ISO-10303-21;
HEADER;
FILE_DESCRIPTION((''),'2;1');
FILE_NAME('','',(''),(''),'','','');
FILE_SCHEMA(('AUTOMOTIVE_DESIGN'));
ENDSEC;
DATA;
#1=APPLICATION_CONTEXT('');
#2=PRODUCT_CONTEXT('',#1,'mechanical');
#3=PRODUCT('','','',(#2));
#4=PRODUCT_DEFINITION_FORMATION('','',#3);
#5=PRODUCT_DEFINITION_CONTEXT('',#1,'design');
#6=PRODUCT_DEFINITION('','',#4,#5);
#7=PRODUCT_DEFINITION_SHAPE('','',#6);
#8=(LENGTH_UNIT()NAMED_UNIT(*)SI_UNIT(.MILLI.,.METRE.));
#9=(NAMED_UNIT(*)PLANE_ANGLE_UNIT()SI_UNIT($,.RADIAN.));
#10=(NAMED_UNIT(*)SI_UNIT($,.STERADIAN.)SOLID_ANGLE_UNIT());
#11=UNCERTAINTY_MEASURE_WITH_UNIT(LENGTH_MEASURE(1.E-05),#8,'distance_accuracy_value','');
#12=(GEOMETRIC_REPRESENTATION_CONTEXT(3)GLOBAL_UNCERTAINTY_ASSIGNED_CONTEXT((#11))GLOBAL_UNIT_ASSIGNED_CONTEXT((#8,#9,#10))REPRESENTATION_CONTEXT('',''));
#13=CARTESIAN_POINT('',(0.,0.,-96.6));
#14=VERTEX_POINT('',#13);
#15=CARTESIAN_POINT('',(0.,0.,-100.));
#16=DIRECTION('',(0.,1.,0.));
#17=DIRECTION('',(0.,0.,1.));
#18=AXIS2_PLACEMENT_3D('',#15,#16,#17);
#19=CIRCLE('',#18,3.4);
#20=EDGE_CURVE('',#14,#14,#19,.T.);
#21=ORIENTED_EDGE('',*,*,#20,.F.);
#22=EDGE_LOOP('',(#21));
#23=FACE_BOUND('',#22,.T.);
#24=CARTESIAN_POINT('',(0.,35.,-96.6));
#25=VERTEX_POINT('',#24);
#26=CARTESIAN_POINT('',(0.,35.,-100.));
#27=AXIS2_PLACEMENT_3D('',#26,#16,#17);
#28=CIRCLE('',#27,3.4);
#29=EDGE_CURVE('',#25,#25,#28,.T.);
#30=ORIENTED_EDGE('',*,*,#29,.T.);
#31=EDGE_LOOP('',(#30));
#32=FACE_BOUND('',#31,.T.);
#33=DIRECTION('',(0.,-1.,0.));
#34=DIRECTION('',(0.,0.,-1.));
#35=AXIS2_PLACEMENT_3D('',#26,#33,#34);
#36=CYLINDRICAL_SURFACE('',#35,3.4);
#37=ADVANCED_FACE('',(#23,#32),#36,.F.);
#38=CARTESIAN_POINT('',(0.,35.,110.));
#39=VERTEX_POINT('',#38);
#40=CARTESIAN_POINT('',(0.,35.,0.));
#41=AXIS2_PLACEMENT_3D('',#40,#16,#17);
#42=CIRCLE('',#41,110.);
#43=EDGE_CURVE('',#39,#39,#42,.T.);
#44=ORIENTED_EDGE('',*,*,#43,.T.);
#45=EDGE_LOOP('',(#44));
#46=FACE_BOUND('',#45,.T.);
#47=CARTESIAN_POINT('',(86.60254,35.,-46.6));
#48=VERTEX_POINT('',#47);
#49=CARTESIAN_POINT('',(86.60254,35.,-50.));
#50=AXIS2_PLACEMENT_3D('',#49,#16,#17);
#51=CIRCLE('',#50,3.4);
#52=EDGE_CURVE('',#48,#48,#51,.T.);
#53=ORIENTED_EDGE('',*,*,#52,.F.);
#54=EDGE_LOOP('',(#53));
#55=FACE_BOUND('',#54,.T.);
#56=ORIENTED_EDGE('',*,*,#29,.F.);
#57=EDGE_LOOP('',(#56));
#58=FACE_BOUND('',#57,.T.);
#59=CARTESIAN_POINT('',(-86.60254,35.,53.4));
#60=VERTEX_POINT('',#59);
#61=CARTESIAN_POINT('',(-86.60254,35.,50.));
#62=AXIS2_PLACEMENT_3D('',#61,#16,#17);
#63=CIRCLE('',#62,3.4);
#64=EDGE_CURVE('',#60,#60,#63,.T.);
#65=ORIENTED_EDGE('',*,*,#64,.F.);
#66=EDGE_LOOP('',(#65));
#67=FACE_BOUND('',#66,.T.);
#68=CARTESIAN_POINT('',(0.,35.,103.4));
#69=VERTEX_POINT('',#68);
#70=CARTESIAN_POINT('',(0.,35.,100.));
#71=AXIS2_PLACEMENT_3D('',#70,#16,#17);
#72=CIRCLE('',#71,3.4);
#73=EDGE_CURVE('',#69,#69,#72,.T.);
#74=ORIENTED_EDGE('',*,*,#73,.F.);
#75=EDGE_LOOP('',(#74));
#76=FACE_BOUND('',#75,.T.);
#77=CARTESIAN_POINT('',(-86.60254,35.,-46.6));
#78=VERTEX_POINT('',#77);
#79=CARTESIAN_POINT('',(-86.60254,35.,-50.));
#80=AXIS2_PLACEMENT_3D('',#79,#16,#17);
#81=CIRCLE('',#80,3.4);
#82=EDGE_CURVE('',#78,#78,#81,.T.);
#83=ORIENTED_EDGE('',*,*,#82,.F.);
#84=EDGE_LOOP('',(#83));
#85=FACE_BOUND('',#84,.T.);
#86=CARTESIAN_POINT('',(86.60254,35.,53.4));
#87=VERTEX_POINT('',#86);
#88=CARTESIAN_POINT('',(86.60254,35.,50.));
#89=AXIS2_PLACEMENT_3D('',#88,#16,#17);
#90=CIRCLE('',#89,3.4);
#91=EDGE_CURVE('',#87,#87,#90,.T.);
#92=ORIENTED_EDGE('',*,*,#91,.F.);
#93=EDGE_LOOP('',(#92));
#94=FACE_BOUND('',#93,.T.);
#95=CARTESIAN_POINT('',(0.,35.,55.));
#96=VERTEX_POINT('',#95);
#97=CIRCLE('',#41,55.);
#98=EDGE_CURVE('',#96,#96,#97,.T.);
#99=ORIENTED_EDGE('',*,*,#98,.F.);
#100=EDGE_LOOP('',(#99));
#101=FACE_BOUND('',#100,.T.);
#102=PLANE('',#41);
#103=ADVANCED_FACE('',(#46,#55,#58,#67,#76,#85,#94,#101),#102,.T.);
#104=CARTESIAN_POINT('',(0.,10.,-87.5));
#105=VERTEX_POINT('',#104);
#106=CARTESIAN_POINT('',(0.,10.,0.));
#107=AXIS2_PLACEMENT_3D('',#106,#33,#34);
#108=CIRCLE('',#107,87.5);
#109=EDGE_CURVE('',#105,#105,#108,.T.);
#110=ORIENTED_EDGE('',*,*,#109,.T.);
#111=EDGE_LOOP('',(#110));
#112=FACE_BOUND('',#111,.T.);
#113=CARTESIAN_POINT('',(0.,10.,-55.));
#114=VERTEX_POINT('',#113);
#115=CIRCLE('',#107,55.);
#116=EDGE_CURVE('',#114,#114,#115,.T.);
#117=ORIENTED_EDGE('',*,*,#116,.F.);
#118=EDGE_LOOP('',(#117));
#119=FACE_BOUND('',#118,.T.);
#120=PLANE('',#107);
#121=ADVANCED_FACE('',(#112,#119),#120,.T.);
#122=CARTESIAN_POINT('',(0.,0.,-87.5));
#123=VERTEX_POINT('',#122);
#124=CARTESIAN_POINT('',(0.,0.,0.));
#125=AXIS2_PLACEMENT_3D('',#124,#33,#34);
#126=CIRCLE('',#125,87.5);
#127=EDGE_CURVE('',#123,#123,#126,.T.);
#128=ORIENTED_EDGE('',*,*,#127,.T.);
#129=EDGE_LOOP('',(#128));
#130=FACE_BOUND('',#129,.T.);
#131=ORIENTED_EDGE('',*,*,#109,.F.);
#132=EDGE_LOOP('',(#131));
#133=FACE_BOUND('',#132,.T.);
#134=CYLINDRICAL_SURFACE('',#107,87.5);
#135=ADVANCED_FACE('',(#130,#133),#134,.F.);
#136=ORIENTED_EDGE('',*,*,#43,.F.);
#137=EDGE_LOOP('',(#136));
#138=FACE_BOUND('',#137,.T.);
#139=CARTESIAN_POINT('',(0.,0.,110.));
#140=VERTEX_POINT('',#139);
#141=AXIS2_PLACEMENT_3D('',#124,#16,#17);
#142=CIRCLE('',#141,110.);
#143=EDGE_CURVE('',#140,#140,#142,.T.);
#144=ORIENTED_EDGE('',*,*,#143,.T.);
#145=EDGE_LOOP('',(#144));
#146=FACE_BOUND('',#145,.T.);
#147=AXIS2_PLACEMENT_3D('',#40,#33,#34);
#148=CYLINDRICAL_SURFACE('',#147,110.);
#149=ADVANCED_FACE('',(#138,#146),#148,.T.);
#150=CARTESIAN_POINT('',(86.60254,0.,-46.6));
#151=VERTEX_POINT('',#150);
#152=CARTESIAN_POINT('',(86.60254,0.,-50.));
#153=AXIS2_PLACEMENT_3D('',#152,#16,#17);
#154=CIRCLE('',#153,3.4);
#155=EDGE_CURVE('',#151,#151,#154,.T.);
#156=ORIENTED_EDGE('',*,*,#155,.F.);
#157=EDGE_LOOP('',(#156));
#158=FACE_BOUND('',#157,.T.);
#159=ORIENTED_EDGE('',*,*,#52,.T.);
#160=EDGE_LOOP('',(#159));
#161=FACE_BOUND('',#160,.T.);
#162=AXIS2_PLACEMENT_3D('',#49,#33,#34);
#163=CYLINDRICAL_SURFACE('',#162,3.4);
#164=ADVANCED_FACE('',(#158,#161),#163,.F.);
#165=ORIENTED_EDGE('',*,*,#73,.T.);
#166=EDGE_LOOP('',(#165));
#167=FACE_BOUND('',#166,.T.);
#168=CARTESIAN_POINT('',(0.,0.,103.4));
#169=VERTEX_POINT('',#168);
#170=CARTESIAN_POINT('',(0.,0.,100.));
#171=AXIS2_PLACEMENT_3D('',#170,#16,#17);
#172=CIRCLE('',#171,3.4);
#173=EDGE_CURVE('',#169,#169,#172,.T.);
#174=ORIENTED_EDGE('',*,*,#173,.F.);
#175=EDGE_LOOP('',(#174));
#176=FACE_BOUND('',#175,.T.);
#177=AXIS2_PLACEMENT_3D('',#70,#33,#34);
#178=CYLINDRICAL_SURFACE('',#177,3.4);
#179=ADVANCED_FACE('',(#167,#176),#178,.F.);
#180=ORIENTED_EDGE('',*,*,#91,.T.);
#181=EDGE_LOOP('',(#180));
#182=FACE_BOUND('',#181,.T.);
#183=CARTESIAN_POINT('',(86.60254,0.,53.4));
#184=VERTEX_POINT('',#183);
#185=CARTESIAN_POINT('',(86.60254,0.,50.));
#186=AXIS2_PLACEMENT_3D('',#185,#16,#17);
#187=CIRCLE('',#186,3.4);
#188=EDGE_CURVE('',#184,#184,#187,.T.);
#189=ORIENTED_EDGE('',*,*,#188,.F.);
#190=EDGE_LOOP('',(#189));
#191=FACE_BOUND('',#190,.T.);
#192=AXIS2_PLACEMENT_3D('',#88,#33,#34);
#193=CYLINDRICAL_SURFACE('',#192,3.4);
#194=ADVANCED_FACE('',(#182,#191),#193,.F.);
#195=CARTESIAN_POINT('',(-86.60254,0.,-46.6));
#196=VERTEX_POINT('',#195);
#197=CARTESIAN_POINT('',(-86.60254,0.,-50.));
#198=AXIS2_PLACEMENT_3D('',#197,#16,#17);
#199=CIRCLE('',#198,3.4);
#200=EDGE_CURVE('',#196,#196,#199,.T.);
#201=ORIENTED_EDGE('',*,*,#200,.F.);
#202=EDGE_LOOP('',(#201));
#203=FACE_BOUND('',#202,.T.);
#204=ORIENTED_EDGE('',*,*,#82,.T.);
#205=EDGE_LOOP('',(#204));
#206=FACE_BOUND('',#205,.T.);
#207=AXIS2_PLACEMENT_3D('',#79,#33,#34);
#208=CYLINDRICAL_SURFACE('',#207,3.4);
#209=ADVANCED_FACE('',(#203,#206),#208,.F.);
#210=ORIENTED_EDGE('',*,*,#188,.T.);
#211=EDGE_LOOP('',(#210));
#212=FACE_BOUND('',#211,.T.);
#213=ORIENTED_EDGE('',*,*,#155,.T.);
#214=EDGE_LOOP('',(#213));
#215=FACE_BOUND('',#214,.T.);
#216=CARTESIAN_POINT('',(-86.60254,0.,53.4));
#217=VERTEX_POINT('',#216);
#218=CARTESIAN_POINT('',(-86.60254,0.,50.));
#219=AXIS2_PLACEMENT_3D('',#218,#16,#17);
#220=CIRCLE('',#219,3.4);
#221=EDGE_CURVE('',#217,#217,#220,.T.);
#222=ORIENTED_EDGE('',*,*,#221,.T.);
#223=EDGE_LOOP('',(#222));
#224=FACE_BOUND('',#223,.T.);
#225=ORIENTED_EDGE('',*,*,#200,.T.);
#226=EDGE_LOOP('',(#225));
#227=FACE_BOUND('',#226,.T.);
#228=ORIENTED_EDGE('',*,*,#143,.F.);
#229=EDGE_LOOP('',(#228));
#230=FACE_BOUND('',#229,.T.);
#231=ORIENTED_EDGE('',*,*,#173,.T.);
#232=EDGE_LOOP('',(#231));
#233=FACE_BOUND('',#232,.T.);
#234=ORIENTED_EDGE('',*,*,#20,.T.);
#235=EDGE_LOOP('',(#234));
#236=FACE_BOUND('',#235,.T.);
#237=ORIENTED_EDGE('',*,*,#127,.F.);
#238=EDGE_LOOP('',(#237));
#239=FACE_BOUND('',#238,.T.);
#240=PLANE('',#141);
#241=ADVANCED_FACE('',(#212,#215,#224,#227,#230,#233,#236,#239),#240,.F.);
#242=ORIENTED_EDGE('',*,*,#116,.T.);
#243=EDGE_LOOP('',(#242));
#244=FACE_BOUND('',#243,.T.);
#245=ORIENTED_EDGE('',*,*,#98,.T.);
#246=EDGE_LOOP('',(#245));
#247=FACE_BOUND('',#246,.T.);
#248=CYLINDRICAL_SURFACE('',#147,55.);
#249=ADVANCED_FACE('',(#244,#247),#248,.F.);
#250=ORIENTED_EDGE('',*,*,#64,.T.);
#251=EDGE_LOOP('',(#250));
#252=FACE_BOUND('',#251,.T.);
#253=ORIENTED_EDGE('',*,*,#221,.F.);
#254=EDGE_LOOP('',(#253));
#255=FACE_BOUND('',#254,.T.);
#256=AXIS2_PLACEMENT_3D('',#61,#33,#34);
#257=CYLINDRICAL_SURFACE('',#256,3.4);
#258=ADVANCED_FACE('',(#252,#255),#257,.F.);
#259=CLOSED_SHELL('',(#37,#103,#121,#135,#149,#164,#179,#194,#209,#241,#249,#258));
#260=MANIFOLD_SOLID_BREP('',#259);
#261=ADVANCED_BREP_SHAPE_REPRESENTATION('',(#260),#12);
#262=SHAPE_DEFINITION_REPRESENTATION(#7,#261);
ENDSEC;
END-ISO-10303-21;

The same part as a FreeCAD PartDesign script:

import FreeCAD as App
import Part
import Sketcher
from FreeCAD import Vector
Q = App.Units.Quantity

doc = App.newDocument("Part")
body = doc.addObject("PartDesign::Body", "Body")

# Sketch on XZ plane
sketch1 = body.newObject("Sketcher::SketchObject", "Sketch")
sketch1.AttachmentSupport = (doc.getObject("XZ_Plane"), [""])
sketch1.MapMode = "FlatFace"
sketch1.addGeometry(Part.Circle(Vector(0, 0, 0), Vector(0, 0, 1), 110), False)
sketch1.addGeometry(Part.Circle(Vector(-86.6, 50, 0), Vector(0, 0, 1), 3.4), False)
sketch1.addGeometry(Part.Circle(Vector(0, 100, 0), Vector(0, 0, 1), 3.4), False)
sketch1.addGeometry(Part.Circle(Vector(86.6, 50, 0), Vector(0, 0, 1), 3.4), False)
sketch1.addGeometry(Part.Circle(Vector(-86.6, -50, 0), Vector(0, 0, 1), 3.4), False)
sketch1.addGeometry(Part.Circle(Vector(0, 0, 0), Vector(0, 0, 1), 55), False)
sketch1.addGeometry(Part.Circle(Vector(86.6, -50, 0), Vector(0, 0, 1), 3.4), False)
sketch1.addGeometry(Part.Circle(Vector(0, -100, 0), Vector(0, 0, 1), 3.4), False)
sketch1.addConstraint(Sketcher.Constraint("Coincident", 0, 3, -1, 1))
sketch1.addConstraint(Sketcher.Constraint("Coincident", 5, 3, -1, 1))
sketch1.addConstraint(Sketcher.Constraint("Equal", 1, 2))
sketch1.addConstraint(Sketcher.Constraint("Equal", 2, 3))
sketch1.addConstraint(Sketcher.Constraint("Equal", 3, 4))
sketch1.addConstraint(Sketcher.Constraint("Equal", 4, 6))
sketch1.addConstraint(Sketcher.Constraint("Equal", 6, 7))
sketch1.addConstraint(Sketcher.Constraint("Symmetric", 3, 3, 4, 3, -1, 1))
sketch1.addConstraint(Sketcher.Constraint("Symmetric", 1, 3, 6, 3, -1, 1))
sketch1.addConstraint(Sketcher.Constraint("Symmetric", 2, 3, 7, 3, -1, 1))
sketch1.addConstraint(Sketcher.Constraint("Symmetric", 1, 3, 3, 3, -2))
sketch1.addConstraint(Sketcher.Constraint("PointOnObject", 2, 3, -2))
sketch1.addConstraint(Sketcher.Constraint("Diameter", 0, Q("220 mm")))
sketch1.addConstraint(Sketcher.Constraint("Diameter", 5, Q("110 mm")))
sketch1.addConstraint(Sketcher.Constraint("Diameter", 1, Q("6.8 mm")))
sketch1.addConstraint(Sketcher.Constraint("DistanceY", -1, 1, 1, 3, Q("50 mm")))
sketch1.addConstraint(Sketcher.Constraint("DistanceY", -1, 1, 2, 3, Q("100 mm")))
sketch1.addConstraint(Sketcher.Constraint("DistanceX", 1, 3, -1, 1, Q("86.60254 mm")))
pad1 = body.newObject("PartDesign::Pad", "Pad")
pad1.Profile = sketch1
pad1.Length = 35
pad1.Reversed = True

# Sketch on XZ plane
sketch2 = body.newObject("Sketcher::SketchObject", "Sketch001")
sketch2.AttachmentSupport = (doc.getObject("XZ_Plane"), [""])
sketch2.MapMode = "FlatFace"
sketch2.addGeometry(Part.Circle(Vector(0, 0, 0), Vector(0, 0, 1), 88), False)
sketch2.addConstraint(Sketcher.Constraint("Coincident", 0, 3, -1, 1))
sketch2.addConstraint(Sketcher.Constraint("Diameter", 0, Q("175 mm")))
pocket1 = body.newObject("PartDesign::Pocket", "Pocket")
pocket1.Profile = sketch2
pocket1.Length = 10

doc.recompute()
